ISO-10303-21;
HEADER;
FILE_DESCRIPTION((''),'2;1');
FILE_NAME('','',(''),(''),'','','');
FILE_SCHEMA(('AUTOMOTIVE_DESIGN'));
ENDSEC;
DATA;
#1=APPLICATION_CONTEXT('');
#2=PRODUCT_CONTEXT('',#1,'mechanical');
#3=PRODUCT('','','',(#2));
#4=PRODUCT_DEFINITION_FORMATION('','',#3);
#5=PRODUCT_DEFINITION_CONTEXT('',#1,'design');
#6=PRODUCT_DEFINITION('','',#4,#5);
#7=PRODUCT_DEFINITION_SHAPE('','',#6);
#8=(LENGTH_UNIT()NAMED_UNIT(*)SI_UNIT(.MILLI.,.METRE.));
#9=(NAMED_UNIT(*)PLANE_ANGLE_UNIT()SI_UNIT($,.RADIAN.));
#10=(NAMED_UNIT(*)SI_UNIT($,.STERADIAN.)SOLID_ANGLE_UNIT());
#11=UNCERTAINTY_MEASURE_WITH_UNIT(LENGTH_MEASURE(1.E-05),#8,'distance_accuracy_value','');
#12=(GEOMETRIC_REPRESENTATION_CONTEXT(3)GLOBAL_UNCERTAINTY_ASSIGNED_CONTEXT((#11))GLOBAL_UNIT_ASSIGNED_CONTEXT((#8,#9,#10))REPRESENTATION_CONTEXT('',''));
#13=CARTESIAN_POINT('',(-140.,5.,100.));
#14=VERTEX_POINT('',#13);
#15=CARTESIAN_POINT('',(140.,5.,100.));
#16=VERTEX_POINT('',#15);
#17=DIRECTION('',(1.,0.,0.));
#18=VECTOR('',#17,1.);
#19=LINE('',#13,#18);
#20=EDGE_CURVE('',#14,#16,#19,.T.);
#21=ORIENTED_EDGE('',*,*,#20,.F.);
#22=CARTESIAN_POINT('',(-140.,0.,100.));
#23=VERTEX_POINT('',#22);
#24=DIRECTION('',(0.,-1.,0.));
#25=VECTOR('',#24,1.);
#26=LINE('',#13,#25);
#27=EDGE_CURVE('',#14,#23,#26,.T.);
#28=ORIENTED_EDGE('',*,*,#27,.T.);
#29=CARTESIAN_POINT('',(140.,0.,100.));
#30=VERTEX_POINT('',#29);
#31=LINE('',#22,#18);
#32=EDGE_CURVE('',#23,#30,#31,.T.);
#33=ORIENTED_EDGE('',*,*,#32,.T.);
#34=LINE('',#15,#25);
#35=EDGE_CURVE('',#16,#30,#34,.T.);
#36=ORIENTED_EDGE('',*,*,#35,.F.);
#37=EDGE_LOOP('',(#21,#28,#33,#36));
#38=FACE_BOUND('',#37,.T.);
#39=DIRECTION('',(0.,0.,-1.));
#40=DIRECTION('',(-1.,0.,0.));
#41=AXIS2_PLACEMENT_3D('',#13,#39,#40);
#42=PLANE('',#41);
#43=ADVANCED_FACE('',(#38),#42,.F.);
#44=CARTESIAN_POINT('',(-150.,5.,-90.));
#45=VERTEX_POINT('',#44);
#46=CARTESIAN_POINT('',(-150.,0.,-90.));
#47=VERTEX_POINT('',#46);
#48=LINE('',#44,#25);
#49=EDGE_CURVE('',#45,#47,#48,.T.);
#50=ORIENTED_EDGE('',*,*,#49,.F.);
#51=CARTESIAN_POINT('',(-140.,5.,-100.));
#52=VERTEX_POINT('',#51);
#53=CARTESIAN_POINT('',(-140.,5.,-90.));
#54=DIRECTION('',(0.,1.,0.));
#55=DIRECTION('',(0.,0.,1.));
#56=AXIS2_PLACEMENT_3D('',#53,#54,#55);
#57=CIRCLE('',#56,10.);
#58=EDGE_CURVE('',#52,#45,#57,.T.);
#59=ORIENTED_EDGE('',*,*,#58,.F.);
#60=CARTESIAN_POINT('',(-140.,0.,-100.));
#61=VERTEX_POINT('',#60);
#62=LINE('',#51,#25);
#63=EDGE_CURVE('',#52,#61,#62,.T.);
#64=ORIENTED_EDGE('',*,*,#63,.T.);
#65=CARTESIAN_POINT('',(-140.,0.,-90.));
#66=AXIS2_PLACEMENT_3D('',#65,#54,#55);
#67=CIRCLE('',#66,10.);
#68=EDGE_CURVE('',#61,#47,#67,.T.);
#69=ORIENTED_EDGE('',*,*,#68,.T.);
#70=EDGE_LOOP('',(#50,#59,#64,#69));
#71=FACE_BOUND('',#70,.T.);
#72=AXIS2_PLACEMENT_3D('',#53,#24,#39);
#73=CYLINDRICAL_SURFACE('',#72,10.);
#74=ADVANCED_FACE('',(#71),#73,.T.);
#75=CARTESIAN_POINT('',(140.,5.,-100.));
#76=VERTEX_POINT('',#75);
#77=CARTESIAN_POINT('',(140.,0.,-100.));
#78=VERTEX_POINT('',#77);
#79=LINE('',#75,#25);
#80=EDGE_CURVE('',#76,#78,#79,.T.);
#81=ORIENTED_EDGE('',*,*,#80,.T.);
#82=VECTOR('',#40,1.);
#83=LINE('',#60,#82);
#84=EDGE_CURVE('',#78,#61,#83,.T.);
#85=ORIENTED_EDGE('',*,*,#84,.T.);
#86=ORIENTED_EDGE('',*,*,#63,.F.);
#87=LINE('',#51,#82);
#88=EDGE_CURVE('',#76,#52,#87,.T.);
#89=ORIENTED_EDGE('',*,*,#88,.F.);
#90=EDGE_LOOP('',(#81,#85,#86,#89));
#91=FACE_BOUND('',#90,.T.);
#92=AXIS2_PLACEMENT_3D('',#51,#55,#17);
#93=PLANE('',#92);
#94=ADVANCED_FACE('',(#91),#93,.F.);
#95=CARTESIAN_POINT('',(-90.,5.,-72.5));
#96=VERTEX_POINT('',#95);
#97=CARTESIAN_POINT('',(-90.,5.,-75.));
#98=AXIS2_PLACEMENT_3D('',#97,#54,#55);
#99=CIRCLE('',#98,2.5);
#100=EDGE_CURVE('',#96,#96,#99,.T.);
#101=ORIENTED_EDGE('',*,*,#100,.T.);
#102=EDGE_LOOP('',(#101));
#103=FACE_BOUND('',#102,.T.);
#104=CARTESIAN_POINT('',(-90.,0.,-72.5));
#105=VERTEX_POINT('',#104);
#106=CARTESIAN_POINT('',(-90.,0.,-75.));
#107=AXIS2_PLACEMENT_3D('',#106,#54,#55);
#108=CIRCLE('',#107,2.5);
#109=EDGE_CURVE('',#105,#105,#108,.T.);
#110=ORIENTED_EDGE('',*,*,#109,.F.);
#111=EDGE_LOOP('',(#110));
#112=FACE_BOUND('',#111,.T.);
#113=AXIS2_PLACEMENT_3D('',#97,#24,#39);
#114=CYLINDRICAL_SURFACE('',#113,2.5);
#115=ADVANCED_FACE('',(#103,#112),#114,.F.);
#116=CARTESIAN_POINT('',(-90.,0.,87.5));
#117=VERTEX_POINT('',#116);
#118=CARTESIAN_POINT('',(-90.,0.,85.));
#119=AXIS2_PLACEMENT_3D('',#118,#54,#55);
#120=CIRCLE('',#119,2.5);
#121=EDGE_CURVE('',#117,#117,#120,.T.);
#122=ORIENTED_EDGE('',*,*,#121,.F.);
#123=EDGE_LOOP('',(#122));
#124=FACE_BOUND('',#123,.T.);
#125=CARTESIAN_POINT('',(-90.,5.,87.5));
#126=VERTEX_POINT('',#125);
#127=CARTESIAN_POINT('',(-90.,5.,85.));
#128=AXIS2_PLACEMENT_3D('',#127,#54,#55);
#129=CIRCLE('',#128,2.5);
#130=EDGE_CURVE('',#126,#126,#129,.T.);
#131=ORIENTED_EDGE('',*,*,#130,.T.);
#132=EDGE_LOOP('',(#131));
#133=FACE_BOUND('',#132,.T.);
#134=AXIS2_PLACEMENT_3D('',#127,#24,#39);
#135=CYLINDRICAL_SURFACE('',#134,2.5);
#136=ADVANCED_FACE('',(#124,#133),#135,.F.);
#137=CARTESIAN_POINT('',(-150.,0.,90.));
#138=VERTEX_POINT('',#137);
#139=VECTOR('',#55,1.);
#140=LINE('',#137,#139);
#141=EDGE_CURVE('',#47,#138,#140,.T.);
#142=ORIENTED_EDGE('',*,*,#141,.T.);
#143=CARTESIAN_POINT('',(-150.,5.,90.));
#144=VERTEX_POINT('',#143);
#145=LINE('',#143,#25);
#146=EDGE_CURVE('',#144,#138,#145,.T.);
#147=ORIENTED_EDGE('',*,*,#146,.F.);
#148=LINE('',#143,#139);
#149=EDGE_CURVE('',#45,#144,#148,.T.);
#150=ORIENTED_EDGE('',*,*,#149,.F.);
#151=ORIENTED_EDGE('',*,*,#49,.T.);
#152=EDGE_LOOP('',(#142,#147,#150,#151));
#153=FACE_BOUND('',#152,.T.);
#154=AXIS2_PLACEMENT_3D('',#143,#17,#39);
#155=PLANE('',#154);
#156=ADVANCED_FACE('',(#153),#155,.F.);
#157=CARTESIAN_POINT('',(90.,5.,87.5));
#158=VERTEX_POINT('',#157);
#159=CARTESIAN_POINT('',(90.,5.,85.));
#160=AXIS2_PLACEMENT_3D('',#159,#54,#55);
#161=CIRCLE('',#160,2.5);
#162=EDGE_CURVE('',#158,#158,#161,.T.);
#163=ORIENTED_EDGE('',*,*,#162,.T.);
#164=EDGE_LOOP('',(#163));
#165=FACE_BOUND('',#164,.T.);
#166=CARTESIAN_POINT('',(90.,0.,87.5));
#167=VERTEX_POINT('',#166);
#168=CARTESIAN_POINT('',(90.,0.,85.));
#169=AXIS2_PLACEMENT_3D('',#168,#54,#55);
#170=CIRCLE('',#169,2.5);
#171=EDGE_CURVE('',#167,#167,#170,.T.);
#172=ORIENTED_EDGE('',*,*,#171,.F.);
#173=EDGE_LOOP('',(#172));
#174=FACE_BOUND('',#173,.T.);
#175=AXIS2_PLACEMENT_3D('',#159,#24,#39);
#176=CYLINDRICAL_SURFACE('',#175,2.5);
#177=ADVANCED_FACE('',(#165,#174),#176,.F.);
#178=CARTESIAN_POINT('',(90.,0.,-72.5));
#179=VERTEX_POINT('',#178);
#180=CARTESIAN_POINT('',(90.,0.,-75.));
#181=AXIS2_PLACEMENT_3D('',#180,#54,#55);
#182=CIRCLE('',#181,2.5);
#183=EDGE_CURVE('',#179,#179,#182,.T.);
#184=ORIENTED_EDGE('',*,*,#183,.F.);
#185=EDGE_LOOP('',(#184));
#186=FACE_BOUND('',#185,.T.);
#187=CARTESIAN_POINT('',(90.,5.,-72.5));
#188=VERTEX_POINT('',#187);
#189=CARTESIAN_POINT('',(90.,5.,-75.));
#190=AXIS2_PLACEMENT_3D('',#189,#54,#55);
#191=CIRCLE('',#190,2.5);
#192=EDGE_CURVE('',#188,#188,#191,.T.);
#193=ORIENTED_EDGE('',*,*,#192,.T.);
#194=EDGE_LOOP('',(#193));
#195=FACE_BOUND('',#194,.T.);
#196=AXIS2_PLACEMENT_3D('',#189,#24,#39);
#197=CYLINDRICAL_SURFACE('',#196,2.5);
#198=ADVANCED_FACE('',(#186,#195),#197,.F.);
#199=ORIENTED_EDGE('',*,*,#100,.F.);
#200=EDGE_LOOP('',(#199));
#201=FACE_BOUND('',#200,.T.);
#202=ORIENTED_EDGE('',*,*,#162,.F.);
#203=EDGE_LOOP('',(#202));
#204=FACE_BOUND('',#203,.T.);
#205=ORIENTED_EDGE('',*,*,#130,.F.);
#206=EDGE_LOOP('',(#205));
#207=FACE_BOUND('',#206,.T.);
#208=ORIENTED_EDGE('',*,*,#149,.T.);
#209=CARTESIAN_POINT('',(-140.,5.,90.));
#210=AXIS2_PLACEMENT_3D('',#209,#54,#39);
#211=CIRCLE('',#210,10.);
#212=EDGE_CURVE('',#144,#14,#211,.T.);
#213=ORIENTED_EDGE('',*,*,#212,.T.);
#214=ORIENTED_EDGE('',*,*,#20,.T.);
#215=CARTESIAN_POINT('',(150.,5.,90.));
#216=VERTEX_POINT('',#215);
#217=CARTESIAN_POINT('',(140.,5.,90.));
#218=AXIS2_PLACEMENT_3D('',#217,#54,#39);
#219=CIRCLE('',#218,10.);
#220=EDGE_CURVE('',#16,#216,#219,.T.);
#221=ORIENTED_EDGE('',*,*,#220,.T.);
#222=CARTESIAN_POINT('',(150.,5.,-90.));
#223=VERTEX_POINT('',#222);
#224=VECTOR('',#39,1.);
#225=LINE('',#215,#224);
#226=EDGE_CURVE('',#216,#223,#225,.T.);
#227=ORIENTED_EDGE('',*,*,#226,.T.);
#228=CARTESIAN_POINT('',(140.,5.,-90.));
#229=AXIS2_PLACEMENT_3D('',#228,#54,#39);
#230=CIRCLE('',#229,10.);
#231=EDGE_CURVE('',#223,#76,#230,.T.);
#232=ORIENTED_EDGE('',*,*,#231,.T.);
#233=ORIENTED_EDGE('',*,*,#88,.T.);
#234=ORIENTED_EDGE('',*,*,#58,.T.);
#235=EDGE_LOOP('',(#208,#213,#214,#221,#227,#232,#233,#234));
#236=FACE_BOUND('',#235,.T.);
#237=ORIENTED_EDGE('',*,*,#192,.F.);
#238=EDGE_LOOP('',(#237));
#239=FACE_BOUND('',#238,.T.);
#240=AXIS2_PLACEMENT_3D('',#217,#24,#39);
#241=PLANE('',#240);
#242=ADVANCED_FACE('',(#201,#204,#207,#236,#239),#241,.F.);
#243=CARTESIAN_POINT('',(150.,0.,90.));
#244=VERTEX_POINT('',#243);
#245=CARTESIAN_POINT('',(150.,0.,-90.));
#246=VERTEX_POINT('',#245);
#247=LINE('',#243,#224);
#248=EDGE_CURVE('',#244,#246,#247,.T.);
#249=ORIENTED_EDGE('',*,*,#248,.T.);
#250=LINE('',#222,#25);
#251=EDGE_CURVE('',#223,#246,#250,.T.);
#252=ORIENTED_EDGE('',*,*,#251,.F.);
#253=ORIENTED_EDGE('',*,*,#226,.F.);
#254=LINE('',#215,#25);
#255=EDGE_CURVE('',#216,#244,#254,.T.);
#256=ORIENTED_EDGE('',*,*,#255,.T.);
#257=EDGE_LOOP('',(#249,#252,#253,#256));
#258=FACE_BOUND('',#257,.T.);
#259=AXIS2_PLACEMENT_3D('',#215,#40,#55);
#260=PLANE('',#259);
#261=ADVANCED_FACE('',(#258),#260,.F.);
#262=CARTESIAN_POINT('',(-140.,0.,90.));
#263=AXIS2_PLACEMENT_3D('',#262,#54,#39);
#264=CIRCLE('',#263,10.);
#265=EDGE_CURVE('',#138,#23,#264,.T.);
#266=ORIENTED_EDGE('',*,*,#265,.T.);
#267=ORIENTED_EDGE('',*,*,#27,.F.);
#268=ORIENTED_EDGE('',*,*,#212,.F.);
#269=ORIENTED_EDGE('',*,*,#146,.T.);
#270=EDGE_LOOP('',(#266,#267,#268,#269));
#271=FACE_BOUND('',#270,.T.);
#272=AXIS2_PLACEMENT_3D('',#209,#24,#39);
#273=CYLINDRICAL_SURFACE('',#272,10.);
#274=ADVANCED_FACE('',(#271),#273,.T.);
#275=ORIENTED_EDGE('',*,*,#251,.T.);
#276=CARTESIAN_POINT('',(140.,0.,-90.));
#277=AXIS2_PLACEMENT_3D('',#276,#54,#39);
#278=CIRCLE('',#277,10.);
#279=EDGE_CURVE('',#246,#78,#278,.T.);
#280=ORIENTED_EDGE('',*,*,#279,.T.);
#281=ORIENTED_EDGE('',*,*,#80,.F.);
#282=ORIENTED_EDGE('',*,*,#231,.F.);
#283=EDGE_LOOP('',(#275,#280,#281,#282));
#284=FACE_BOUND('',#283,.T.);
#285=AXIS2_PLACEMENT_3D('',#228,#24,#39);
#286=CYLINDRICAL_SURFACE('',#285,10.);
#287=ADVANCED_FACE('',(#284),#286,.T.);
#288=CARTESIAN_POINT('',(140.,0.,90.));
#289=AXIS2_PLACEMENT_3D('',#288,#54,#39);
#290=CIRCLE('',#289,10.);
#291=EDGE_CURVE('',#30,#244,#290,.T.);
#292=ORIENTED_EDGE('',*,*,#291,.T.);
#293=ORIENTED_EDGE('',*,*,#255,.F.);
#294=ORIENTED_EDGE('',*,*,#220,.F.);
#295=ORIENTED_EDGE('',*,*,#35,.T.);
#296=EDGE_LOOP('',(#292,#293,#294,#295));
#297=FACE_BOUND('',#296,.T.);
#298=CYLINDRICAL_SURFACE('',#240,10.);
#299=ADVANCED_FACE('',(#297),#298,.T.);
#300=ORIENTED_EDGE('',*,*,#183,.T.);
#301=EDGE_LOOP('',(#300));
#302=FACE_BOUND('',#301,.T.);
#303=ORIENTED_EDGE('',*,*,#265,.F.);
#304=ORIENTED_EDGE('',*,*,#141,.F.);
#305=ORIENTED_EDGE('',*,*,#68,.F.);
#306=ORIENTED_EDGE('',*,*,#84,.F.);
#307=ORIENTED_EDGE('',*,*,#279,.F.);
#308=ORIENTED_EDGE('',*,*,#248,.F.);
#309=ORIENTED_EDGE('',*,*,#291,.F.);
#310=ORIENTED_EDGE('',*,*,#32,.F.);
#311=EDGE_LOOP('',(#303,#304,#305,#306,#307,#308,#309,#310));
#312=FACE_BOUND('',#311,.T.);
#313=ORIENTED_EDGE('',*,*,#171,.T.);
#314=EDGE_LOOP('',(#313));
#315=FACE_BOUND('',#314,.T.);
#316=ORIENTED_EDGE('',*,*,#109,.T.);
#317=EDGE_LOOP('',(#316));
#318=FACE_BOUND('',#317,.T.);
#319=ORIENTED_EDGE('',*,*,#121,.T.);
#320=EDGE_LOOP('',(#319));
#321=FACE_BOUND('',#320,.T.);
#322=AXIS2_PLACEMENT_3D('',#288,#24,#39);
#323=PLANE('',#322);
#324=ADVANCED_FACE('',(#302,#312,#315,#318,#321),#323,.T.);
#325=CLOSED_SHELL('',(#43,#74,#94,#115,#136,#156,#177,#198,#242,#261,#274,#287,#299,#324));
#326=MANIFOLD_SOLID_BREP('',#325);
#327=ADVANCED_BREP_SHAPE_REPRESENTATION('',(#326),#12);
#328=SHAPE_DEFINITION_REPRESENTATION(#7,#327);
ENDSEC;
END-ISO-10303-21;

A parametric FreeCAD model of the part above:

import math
import FreeCAD as App
import Part
import Sketcher

doc = App.newDocument("Part")
body = doc.addObject("PartDesign::Body", "Body")

sketch1 = body.newObject("Sketcher::SketchObject", "Sketch")
sketch1.AttachmentSupport = (doc.getObject("XZ_Plane"), [""])
sketch1.MapMode = "FlatFace"
sketch1.addGeometry(Part.LineSegment(App.Vector(-140, 100, 0), App.Vector(140, 100, 0)), False)
sketch1.addGeometry(Part.ArcOfCircle(Part.Circle(App.Vector(140, 90, 0), App.Vector(0, 0, 1), 10), math.radians(0), math.radians(90)), False)
sketch1.addGeometry(Part.LineSegment(App.Vector(150, 90, 0), App.Vector(150, -90, 0)), False)
sketch1.addGeometry(Part.ArcOfCircle(Part.Circle(App.Vector(140, -90, 0), App.Vector(0, 0, 1), 10), math.radians(-90), math.radians(0)), False)
sketch1.addGeometry(Part.LineSegment(App.Vector(140, -100, 0), App.Vector(-140, -100, 0)), False)
sketch1.addGeometry(Part.ArcOfCircle(Part.Circle(App.Vector(-140, -90, 0), App.Vector(0, 0, 1), 10), math.radians(180), math.radians(270)), False)
sketch1.addGeometry(Part.LineSegment(App.Vector(-150, -90, 0), App.Vector(-150, 90, 0)), False)
sketch1.addGeometry(Part.ArcOfCircle(Part.Circle(App.Vector(-140, 90, 0), App.Vector(0, 0, 1), 10), math.radians(90), math.radians(180)), False)
sketch1.addGeometry(Part.Circle(App.Vector(-90, 85, 0), App.Vector(0, 0, 1), 2.5), False)
sketch1.addGeometry(Part.Circle(App.Vector(90, 85, 0), App.Vector(0, 0, 1), 2.5), False)
sketch1.addGeometry(Part.Circle(App.Vector(-90, -75, 0), App.Vector(0, 0, 1), 2.5), False)
sketch1.addGeometry(Part.Circle(App.Vector(90, -75, 0), App.Vector(0, 0, 1), 2.5), False)
sketch1.addConstraint(Sketcher.Constraint("Tangent", 0, 2, 1, 2))
sketch1.addConstraint(Sketcher.Constraint("Tangent", 1, 1, 2, 1))
sketch1.addConstraint(Sketcher.Constraint("Tangent", 2, 2, 3, 2))
sketch1.addConstraint(Sketcher.Constraint("Tangent", 3, 1, 4, 1))
sketch1.addConstraint(Sketcher.Constraint("Tangent", 4, 2, 5, 2))
sketch1.addConstraint(Sketcher.Constraint("Tangent", 5, 1, 6, 1))
sketch1.addConstraint(Sketcher.Constraint("Tangent", 6, 2, 7, 2))
sketch1.addConstraint(Sketcher.Constraint("Tangent", 7, 1, 0, 1))
sketch1.addConstraint(Sketcher.Constraint("Horizontal", 0))
sketch1.addConstraint(Sketcher.Constraint("Vertical", 2))
sketch1.addConstraint(Sketcher.Constraint("Horizontal", 4))
sketch1.addConstraint(Sketcher.Constraint("Vertical", 6))
sketch1.addConstraint(Sketcher.Constraint("Equal", 1, 3))
sketch1.addConstraint(Sketcher.Constraint("Equal", 3, 5))
sketch1.addConstraint(Sketcher.Constraint("Equal", 5, 7))
sketch1.addConstraint(Sketcher.Constraint("Equal", 8, 9))
sketch1.addConstraint(Sketcher.Constraint("Equal", 9, 10))
sketch1.addConstraint(Sketcher.Constraint("Equal", 10, 11))
sketch1.addConstraint(Sketcher.Constraint("Symmetric", 1, 3, 5, 3, -1, 1))
sketch1.addConstraint(Sketcher.Constraint("Symmetric", 8, 3, 9, 3, -2))
sketch1.addConstraint(Sketcher.Constraint("Symmetric", 10, 3, 11, 3, -2))
sketch1.addConstraint(Sketcher.Constraint("Vertical", 8, 3, 10, 3))
sketch1.addConstraint(Sketcher.Constraint("Diameter", 8, 5.0))
sketch1.addConstraint(Sketcher.Constraint("Radius", 1, 10.0))
sketch1.addConstraint(Sketcher.Constraint("DistanceX", 0, 1, 0, 2, 280.0))
sketch1.addConstraint(Sketcher.Constraint("DistanceY", 2, 2, 2, 1, 180.0))
sketch1.addConstraint(Sketcher.Constraint("DistanceX", 8, 3, -1, 1, 90.0))
sketch1.addConstraint(Sketcher.Constraint("DistanceY", -1, 1, 8, 3, 85.0))
sketch1.addConstraint(Sketcher.Constraint("DistanceY", 10, 3, -1, 1, 75.0))
pad1 = body.newObject("PartDesign::Pad", "Pad")
pad1.Profile = sketch1
pad1.Length = 5
pad1.Reversed = True

doc.recompute()
